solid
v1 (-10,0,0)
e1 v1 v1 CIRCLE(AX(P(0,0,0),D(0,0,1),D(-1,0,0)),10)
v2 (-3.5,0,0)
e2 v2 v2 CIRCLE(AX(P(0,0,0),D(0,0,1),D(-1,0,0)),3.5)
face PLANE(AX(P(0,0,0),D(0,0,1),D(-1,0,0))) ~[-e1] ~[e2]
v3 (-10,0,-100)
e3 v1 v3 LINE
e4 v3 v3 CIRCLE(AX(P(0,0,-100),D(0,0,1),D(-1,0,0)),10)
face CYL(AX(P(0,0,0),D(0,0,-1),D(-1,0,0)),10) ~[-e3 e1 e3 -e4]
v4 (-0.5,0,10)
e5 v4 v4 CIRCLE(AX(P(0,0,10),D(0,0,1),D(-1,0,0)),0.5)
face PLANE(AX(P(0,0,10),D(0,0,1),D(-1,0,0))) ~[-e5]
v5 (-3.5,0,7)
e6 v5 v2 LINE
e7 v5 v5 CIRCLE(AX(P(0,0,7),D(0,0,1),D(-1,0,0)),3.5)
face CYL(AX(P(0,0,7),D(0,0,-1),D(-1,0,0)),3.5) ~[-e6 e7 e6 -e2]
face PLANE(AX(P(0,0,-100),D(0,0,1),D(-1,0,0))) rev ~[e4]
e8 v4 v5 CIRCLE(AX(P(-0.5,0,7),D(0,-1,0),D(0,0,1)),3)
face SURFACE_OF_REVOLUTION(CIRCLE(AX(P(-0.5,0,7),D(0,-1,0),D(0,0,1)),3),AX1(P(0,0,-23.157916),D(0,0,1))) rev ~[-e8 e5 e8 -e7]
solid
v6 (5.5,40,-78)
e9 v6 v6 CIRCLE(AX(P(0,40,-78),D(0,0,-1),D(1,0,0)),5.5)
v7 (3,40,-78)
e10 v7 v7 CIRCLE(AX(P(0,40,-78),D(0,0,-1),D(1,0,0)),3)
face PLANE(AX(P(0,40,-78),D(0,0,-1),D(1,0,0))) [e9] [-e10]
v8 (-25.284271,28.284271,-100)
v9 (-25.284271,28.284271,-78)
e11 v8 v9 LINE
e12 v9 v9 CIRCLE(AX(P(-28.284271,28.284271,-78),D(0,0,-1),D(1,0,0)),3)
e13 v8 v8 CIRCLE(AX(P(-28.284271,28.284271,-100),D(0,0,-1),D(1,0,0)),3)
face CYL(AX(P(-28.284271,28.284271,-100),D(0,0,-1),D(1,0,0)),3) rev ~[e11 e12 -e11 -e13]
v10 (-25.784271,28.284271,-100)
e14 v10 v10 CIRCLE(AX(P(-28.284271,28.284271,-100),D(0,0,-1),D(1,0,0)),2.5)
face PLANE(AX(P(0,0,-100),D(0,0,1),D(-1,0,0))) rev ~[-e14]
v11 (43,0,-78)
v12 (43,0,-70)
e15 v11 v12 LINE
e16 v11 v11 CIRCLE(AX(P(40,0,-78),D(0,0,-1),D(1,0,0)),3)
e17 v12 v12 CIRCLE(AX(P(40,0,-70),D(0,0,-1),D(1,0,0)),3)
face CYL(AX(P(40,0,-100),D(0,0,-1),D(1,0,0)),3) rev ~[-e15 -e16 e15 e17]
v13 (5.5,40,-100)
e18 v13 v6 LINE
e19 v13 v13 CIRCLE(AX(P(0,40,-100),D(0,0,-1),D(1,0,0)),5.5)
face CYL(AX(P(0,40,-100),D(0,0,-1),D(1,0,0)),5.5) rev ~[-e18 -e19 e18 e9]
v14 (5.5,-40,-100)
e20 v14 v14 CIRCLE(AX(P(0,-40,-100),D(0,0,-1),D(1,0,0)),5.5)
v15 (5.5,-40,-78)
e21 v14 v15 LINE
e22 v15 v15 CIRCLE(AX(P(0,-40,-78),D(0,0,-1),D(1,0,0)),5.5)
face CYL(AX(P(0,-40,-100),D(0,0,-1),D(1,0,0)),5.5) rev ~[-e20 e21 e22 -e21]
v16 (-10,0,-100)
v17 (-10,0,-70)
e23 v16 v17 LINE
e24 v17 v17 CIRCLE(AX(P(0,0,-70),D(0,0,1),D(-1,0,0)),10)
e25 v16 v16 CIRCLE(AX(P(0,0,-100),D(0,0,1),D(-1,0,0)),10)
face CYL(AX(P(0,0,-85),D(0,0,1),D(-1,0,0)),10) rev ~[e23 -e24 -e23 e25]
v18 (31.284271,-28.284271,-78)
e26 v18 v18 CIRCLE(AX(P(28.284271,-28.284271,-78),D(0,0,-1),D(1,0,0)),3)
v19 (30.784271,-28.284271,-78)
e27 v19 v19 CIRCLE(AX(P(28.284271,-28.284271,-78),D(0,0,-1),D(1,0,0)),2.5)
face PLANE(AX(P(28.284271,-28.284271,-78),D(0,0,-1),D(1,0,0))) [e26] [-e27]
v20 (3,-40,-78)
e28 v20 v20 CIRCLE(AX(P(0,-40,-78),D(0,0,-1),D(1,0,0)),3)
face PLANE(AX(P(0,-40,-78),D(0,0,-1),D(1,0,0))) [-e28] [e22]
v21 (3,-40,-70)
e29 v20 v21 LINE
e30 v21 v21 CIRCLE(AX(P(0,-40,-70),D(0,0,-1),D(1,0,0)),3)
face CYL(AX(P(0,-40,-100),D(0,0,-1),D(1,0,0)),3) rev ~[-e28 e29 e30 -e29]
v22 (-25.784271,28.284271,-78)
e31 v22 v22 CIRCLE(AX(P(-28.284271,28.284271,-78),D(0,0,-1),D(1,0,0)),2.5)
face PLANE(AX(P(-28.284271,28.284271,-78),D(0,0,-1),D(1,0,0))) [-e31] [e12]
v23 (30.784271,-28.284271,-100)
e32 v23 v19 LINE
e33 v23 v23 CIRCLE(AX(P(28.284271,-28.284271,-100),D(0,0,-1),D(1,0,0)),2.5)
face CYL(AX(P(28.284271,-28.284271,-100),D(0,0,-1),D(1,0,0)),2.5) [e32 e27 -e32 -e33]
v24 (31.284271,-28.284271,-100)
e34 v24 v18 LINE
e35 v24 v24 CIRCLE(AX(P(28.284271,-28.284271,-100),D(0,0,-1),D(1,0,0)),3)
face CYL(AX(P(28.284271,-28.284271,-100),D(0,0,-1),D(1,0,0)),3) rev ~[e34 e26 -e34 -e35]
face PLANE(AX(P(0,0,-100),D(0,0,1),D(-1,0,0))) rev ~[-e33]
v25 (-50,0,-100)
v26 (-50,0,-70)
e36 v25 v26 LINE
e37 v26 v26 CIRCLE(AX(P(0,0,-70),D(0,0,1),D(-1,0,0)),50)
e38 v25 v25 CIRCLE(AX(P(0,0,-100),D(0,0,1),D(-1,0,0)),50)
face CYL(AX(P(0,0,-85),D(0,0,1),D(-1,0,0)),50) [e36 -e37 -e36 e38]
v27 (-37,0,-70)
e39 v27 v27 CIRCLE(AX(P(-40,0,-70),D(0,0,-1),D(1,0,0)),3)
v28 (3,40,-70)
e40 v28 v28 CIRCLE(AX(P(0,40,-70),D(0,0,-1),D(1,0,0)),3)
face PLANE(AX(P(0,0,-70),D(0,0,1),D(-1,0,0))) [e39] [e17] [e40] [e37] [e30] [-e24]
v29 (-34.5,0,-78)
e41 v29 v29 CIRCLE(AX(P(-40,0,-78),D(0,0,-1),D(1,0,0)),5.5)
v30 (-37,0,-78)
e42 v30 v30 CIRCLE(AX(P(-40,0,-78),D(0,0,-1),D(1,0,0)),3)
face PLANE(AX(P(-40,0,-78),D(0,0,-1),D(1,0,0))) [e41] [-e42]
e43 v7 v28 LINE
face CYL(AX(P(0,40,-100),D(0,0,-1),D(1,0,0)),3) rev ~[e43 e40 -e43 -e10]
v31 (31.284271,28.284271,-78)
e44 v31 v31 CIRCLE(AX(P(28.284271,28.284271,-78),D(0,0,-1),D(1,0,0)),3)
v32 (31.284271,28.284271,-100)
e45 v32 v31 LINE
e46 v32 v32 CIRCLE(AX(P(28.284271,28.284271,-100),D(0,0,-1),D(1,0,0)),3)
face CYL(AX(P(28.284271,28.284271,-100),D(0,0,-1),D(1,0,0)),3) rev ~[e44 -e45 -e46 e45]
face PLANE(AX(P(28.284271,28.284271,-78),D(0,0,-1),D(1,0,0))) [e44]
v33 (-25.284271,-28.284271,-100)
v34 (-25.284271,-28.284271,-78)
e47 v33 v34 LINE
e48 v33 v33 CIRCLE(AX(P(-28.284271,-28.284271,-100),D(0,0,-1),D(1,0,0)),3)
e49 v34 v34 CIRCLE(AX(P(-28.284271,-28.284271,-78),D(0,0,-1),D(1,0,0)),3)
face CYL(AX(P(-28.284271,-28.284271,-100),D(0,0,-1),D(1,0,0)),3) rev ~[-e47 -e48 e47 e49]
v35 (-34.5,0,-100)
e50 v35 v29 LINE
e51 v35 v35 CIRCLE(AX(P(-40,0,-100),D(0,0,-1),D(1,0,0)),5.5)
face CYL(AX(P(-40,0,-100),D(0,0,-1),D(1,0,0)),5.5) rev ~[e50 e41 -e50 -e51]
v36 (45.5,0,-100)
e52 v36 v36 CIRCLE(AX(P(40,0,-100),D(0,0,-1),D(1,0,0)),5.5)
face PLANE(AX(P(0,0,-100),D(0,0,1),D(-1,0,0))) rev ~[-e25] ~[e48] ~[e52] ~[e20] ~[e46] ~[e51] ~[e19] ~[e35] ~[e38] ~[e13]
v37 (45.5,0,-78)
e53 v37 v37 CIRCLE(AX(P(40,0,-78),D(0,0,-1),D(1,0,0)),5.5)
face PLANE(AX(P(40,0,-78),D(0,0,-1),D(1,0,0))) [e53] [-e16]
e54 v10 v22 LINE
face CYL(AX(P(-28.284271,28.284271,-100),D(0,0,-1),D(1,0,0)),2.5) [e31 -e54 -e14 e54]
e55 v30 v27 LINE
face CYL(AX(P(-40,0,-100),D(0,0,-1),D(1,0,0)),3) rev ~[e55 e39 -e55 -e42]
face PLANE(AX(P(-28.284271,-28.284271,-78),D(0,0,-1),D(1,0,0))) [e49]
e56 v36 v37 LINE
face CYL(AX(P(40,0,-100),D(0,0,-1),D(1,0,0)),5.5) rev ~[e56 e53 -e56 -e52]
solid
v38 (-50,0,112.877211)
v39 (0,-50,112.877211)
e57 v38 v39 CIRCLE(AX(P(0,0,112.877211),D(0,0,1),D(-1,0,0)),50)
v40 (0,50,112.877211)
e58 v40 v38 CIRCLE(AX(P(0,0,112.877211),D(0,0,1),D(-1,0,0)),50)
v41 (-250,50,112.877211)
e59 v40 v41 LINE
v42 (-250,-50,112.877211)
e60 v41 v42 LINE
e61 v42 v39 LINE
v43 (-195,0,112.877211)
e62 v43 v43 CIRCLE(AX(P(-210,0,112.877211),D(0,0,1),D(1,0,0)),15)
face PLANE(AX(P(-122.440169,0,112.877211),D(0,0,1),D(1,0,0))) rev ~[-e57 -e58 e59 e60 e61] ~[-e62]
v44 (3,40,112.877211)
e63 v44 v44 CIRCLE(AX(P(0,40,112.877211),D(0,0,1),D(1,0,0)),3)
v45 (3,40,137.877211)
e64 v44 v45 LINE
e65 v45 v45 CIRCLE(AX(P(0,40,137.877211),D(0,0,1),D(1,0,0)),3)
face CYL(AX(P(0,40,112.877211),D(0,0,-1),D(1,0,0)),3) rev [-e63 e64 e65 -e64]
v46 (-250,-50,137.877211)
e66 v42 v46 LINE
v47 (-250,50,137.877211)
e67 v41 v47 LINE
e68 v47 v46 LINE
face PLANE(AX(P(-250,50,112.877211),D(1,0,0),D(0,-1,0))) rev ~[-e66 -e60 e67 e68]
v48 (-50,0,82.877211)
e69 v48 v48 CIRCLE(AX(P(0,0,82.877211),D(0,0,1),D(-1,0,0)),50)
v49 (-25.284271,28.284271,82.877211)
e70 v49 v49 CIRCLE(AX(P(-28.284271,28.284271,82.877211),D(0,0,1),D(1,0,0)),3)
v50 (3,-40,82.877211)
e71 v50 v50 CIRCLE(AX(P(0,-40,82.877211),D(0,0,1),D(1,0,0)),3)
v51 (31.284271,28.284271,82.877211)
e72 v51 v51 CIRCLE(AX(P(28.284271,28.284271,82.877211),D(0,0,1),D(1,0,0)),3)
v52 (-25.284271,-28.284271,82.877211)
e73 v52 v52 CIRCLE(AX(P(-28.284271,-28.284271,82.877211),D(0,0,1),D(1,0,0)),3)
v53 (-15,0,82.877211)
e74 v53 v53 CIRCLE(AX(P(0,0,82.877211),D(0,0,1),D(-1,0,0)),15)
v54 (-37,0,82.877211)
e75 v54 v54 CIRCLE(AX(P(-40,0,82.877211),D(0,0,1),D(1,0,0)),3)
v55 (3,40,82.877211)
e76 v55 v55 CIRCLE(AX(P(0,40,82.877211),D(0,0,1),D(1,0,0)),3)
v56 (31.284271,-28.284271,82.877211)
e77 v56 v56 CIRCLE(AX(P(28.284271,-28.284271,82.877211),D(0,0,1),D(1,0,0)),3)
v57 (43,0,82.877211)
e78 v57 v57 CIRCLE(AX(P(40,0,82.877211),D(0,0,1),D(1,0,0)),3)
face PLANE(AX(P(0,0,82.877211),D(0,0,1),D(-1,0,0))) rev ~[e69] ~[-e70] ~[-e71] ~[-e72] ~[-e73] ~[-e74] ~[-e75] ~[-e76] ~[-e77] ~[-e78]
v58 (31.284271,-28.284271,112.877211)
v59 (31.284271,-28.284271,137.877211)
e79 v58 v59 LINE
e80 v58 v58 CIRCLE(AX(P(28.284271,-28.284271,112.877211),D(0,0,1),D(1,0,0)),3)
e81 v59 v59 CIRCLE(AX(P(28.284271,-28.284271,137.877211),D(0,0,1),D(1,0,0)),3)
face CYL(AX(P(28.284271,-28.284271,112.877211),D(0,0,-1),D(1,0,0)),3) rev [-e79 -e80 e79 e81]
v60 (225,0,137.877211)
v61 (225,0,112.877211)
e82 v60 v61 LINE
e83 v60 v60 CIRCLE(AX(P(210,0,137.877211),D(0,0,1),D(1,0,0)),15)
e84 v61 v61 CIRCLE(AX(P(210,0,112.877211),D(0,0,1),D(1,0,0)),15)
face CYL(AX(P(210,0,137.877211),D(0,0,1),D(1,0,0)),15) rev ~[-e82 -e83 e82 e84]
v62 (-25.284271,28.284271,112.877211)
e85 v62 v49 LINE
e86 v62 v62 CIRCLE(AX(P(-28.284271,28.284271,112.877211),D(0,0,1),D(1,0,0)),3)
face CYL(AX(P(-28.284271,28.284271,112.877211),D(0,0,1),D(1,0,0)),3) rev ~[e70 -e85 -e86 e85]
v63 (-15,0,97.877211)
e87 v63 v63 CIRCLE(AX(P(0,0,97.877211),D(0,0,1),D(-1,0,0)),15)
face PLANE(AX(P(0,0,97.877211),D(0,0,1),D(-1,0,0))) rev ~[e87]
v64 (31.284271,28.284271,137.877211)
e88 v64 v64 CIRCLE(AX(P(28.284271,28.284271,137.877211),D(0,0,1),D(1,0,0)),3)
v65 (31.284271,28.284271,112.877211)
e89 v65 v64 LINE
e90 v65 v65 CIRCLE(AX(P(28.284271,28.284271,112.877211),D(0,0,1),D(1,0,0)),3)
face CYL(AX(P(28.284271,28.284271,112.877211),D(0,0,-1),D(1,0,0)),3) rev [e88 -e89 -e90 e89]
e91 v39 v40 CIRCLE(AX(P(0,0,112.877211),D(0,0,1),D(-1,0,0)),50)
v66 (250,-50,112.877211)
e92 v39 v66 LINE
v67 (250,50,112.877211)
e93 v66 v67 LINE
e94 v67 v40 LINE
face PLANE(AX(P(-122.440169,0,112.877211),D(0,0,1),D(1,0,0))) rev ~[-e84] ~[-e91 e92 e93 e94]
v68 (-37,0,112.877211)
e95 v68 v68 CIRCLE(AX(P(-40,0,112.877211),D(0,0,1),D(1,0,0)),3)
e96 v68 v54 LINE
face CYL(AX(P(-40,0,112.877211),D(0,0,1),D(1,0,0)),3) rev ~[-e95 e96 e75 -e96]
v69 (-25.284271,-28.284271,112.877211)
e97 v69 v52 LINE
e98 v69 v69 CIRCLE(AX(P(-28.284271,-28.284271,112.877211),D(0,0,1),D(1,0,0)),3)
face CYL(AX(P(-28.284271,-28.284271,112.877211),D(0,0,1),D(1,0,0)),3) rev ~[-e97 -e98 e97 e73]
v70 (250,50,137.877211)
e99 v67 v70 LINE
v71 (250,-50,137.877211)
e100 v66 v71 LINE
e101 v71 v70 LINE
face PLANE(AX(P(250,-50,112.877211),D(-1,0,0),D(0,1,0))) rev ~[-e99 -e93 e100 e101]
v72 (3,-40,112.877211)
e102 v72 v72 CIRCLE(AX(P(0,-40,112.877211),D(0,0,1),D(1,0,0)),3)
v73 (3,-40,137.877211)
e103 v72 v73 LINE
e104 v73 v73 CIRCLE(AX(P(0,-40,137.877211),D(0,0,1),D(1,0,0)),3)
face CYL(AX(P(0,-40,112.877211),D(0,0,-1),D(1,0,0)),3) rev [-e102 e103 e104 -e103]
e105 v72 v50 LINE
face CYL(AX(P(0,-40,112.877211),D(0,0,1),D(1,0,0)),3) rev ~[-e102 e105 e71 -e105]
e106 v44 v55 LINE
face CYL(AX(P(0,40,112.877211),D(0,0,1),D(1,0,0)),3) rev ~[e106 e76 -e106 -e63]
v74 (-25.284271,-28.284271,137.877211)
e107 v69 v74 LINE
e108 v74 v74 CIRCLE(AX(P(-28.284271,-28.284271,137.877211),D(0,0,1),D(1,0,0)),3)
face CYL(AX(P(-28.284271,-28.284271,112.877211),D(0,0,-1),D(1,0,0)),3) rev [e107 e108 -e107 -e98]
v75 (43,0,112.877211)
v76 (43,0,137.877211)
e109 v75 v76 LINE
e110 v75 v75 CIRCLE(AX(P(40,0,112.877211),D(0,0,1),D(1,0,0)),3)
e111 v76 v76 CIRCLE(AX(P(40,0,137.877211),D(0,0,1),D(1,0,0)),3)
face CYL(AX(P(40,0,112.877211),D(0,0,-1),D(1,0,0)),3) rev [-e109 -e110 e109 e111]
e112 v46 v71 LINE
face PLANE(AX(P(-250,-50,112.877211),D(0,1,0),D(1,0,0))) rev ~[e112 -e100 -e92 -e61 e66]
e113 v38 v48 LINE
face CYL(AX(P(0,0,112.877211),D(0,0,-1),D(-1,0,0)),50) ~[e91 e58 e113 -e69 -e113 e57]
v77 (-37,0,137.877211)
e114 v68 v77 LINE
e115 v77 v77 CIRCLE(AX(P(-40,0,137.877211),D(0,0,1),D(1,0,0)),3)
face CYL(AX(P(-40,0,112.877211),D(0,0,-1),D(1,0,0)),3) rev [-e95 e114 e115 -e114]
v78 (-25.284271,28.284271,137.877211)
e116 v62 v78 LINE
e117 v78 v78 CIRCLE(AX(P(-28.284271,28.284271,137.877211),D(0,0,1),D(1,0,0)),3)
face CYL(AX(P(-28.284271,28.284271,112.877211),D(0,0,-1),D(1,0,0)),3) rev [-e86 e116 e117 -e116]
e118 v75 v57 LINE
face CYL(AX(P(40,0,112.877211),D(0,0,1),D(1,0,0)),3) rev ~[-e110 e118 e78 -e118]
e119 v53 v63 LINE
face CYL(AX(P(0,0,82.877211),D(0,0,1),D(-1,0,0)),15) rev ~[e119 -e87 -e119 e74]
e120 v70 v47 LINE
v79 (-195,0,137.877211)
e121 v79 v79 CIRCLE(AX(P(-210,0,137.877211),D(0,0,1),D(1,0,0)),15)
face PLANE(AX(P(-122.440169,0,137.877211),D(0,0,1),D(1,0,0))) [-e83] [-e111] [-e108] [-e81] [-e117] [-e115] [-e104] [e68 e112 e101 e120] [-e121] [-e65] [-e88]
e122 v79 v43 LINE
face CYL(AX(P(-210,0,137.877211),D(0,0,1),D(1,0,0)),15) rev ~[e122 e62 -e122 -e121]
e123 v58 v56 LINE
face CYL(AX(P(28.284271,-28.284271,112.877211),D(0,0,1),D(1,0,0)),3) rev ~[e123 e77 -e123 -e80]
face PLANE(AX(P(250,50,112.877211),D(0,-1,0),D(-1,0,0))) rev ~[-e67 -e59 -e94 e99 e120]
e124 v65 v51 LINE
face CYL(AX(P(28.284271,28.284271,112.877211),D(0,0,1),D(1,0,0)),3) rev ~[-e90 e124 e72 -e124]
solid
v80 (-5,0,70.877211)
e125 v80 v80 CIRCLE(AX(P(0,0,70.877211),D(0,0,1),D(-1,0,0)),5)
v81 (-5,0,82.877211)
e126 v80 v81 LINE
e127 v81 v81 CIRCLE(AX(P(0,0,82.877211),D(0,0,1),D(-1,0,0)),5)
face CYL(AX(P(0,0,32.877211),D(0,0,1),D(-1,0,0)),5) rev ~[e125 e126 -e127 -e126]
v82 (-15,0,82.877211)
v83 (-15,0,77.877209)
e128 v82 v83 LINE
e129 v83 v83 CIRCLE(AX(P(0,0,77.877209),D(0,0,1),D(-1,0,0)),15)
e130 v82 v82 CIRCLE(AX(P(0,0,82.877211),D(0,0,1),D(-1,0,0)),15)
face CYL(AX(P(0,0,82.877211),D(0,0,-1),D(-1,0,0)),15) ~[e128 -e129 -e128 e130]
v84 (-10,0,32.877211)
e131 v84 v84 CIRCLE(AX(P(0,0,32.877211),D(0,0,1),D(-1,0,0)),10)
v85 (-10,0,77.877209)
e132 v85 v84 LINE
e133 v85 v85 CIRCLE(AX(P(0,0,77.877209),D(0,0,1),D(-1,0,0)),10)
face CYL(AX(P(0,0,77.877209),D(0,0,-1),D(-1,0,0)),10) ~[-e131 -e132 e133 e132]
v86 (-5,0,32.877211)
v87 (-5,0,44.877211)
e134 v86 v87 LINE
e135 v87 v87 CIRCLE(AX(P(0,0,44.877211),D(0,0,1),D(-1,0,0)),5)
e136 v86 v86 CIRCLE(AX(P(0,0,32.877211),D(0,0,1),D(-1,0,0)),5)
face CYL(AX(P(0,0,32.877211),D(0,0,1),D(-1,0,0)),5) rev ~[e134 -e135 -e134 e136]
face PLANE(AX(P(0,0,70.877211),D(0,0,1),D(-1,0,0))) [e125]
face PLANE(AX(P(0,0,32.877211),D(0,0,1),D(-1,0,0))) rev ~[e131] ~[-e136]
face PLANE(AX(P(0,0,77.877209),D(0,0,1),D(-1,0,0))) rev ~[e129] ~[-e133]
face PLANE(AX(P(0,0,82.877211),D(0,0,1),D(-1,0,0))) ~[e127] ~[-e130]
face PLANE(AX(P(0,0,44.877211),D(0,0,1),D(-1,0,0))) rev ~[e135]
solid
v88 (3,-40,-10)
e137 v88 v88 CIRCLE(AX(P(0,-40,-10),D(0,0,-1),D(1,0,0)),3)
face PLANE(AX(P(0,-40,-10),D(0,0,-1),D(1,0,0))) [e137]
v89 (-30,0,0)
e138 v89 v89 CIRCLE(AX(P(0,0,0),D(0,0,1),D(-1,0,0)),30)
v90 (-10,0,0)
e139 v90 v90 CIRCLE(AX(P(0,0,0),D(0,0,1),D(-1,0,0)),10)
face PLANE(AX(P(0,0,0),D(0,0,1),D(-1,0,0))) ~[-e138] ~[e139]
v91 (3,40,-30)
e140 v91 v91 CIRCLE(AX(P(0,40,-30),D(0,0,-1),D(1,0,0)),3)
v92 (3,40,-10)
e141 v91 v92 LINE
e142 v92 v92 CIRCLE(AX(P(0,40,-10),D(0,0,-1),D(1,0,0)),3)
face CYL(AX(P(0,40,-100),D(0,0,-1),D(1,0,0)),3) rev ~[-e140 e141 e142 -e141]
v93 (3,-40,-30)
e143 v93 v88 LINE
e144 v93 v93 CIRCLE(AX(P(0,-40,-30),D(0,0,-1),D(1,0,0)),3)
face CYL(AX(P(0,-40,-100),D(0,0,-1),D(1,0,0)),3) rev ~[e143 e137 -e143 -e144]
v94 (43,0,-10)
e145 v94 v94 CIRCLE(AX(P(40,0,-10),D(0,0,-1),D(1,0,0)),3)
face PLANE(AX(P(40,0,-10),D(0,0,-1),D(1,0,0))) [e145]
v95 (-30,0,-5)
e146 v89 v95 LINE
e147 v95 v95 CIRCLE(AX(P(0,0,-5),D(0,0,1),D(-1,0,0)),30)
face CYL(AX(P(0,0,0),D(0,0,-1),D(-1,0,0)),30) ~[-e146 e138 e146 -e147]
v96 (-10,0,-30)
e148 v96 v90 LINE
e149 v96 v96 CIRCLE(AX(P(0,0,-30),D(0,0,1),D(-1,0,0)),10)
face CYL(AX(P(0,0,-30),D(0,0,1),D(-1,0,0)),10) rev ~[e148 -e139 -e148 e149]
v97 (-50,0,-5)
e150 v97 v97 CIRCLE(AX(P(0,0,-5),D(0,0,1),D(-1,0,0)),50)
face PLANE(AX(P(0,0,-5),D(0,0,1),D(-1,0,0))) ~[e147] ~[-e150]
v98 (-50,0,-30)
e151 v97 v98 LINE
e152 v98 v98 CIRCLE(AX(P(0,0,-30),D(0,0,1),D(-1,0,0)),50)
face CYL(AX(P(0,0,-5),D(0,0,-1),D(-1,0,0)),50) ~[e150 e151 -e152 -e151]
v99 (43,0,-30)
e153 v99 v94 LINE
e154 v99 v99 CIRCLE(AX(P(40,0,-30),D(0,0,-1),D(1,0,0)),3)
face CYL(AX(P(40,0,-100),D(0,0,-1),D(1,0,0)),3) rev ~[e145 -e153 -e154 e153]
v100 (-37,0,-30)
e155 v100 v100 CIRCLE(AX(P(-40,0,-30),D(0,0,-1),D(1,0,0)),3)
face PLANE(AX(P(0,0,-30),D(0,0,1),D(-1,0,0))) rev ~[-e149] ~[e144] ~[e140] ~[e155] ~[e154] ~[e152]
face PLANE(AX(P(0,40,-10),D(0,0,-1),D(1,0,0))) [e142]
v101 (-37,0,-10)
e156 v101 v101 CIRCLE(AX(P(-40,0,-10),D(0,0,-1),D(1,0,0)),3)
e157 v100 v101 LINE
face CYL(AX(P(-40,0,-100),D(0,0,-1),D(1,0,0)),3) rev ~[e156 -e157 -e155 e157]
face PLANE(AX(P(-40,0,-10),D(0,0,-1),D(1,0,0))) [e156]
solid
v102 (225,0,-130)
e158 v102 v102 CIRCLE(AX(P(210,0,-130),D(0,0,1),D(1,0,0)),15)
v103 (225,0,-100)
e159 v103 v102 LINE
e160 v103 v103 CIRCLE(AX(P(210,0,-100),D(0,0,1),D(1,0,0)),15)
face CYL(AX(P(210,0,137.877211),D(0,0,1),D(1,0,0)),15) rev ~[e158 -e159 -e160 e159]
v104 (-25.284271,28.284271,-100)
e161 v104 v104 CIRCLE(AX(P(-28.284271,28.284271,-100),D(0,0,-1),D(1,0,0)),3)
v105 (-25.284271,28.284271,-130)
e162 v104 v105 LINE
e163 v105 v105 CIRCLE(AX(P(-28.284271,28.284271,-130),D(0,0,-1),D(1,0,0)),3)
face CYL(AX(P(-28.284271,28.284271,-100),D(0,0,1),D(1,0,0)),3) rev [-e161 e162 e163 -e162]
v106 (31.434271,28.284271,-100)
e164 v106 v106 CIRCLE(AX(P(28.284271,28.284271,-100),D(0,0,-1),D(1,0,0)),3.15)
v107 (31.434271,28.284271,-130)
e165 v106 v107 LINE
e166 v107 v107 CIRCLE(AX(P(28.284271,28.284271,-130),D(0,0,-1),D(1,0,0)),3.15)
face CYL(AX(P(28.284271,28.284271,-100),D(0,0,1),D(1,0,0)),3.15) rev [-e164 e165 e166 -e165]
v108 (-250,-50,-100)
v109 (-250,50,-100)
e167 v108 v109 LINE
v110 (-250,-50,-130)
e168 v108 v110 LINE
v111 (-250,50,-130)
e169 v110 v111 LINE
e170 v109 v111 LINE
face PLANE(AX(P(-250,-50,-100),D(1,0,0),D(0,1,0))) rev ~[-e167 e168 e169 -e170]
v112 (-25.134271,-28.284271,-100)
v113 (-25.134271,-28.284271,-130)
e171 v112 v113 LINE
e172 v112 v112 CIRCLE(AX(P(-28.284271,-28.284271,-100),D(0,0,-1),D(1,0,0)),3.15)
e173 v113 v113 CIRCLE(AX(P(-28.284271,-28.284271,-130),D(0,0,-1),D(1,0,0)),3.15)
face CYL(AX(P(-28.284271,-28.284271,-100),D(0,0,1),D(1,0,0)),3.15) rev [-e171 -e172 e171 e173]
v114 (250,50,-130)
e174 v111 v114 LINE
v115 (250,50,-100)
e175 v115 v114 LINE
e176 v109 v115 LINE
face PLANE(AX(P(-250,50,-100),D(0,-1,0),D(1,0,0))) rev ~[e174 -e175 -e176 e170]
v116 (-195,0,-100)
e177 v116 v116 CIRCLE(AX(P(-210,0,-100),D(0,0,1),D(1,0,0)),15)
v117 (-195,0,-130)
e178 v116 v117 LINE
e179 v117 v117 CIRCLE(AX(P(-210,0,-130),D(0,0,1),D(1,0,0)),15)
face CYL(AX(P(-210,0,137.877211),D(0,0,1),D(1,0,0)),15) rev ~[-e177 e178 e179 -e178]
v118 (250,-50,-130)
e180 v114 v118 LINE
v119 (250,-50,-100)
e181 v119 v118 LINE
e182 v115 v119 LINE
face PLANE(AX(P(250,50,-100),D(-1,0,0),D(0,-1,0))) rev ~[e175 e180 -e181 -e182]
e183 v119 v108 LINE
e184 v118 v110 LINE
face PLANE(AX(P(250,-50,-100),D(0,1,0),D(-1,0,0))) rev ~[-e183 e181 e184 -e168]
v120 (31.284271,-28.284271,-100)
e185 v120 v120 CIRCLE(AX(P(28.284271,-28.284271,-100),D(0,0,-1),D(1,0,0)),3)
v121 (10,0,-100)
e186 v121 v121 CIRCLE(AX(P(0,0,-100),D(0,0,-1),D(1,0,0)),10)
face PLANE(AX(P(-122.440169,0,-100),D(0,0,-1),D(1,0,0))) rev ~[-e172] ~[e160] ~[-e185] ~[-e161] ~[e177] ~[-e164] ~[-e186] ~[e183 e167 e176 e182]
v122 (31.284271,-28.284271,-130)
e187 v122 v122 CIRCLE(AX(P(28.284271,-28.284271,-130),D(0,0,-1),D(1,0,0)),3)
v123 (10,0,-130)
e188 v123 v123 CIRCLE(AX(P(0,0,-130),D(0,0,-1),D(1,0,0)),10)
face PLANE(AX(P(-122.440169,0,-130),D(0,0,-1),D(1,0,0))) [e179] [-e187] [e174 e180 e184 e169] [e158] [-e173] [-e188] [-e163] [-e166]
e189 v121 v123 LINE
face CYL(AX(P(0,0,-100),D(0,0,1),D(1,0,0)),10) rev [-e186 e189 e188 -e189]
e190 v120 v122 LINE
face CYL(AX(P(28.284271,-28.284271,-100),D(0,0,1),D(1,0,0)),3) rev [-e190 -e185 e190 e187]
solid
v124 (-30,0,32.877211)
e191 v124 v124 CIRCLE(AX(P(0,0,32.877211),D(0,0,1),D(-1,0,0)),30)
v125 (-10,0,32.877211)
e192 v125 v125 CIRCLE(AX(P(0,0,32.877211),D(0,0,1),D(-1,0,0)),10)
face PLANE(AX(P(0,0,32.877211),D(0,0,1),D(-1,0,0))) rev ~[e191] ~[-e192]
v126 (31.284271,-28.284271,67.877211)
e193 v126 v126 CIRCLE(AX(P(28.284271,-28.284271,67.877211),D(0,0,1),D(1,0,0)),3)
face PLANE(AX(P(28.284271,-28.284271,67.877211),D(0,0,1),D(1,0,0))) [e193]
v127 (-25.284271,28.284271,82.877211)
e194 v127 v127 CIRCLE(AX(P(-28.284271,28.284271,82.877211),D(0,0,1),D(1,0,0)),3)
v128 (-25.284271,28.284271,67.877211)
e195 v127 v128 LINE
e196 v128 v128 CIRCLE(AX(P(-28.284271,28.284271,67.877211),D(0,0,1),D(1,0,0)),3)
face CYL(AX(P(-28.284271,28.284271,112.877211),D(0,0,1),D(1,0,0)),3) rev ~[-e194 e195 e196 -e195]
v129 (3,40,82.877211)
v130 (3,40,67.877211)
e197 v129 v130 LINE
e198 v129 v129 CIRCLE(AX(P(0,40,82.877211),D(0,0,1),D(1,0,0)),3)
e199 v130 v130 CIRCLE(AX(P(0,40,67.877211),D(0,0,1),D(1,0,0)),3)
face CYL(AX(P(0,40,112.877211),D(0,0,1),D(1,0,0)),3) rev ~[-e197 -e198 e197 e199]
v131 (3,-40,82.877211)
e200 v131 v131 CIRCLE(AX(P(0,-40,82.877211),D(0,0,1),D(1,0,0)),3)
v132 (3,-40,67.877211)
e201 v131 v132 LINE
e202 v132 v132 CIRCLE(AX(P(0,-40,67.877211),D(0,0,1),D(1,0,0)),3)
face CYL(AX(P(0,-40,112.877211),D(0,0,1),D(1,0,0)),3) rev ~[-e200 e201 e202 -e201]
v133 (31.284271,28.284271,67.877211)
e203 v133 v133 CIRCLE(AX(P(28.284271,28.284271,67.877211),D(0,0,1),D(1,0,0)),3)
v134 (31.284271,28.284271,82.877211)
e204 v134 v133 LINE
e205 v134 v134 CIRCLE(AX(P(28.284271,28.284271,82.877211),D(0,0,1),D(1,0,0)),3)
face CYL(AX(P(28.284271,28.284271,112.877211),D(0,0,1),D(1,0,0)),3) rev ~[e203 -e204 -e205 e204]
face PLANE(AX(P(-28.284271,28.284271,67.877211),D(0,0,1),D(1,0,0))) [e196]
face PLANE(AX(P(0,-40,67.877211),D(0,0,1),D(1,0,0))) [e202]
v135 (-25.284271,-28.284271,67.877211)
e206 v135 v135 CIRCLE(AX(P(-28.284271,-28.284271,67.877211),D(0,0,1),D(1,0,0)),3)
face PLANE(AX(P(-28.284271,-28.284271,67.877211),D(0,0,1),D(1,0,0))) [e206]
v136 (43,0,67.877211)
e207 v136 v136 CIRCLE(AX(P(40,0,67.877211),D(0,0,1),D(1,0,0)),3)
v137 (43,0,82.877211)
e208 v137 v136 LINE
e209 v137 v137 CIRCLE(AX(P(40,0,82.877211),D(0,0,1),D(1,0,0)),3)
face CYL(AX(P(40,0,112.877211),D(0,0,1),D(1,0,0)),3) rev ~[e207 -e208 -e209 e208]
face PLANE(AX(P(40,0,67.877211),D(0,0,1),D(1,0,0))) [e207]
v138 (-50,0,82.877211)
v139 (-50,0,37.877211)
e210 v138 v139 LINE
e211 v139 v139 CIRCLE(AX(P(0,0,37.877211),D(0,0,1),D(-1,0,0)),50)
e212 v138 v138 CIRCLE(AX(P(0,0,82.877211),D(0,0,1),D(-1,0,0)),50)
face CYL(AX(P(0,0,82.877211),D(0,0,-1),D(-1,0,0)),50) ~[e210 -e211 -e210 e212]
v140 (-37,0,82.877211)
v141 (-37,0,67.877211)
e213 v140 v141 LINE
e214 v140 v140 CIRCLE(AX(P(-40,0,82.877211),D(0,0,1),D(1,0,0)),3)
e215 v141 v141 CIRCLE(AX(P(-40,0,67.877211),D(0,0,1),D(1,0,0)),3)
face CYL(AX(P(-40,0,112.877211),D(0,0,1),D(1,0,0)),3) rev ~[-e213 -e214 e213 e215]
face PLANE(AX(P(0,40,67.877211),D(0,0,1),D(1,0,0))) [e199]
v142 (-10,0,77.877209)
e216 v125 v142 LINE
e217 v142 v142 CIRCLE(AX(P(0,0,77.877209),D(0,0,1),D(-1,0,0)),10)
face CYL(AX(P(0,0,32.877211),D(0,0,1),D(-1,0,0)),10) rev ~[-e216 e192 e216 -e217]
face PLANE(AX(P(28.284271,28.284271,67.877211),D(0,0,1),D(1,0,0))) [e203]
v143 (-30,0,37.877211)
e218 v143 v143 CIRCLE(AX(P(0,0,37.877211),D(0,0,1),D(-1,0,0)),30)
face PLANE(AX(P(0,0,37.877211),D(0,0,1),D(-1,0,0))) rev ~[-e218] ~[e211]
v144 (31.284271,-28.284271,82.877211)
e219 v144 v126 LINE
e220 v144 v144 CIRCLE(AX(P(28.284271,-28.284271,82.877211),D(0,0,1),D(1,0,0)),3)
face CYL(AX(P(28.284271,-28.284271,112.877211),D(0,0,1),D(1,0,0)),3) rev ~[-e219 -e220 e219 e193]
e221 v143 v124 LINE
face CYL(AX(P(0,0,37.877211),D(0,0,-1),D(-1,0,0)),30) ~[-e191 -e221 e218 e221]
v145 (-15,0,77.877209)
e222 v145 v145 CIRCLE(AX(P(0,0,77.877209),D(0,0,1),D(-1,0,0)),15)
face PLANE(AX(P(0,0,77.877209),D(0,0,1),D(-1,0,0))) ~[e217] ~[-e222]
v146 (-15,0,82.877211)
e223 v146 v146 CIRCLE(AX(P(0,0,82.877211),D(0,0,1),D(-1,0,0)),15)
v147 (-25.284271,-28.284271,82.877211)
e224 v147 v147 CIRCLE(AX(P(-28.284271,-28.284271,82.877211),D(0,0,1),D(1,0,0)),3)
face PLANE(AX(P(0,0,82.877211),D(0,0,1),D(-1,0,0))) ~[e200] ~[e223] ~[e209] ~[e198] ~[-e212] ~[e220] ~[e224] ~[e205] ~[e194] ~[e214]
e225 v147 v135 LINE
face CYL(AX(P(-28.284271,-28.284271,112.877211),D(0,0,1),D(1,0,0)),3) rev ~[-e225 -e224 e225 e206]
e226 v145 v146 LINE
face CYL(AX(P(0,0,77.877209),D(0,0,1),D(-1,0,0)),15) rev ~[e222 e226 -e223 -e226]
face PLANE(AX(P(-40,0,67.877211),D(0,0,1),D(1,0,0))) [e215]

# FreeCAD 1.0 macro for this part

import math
import FreeCAD as App
import Part
import Sketcher


def add_polygon(sketch, points):
    """Adds a closed chain of lines whose ends are joined by coincident constraints."""
    first, n = sketch.GeometryCount, len(points)
    for a, b in zip(points, points[1:] + points[:1]):
        sketch.addGeometry(Part.LineSegment(App.Vector(*a, 0), App.Vector(*b, 0)), False)
    for i in range(n):
        sketch.addConstraint(Sketcher.Constraint("Coincident", first + i, 2, first + (i + 1) % n, 1))

doc = App.newDocument("Part")
body = doc.addObject("PartDesign::Body", "Body")

# Sketch on XZ plane
sketch1 = body.newObject("Sketcher::SketchObject", "Sketch")
sketch1.AttachmentSupport = (doc.getObject("XZ_Plane"), [""])
sketch1.MapMode = "FlatFace"
add_polygon(sketch1, [(-10, 0), (-30, 0), (-30, -5), (-50, -5), (-50, -30), (-10, -30)])  # lines 0-5
sketch1.addConstraint([
    Sketcher.Constraint("Horizontal", 0),
    Sketcher.Constraint("Vertical", 1),
    Sketcher.Constraint("Horizontal", 2),
    Sketcher.Constraint("Vertical", 3),
    Sketcher.Constraint("Horizontal", 4),
    Sketcher.Constraint("Vertical", 5),
    Sketcher.Constraint("PointOnObject", 0, 2, -1),
    Sketcher.Constraint("Equal", 0, 2),
    Sketcher.Constraint("DistanceX", 0, 2, 0, 1, 20.0),
    Sketcher.Constraint("DistanceY", 1, 2, 1, 1, 5.0),
    Sketcher.Constraint("DistanceY", 3, 2, 3, 1, 25.0),
    Sketcher.Constraint("DistanceX", 0, 2, -1, 1, 30.0),
])
revolution = body.newObject("PartDesign::Revolution", "Revolution")
revolution.Profile = sketch1
revolution.ReferenceAxis = (sketch1, ["V_Axis"])
revolution.Angle = 360
body2 = doc.addObject("PartDesign::Body", "Body001")

# Sketch on XZ plane
sketch2 = body2.newObject("Sketcher::SketchObject", "Sketch001")
sketch2.AttachmentSupport = (doc.getObject("XZ_Plane001"), [""])
sketch2.MapMode = "FlatFace"
sketch2.addGeometry([
    Part.LineSegment(App.Vector(-3.5, 0, 0), App.Vector(-10, 0, 0)),  # 0
    Part.LineSegment(App.Vector(-10, 0, 0), App.Vector(-10, -100, 0)),  # 1
    Part.LineSegment(App.Vector(-10, -100, 0), App.Vector(0, -100, 0)),  # 2
    Part.LineSegment(App.Vector(0, -100, 0), App.Vector(0, 10, 0)),  # 3
    Part.LineSegment(App.Vector(0, 10, 0), App.Vector(-0.5, 10, 0)),  # 4
    Part.ArcOfCircle(Part.Circle(App.Vector(-0.5, 7, 0), App.Vector(0, 0, 1), 3), math.radians(90), math.radians(180)),  # 5
    Part.LineSegment(App.Vector(-3.5, 7, 0), App.Vector(-3.5, 0, 0)),  # 6
], False)
sketch2.addConstraint([
    Sketcher.Constraint("Coincident", 0, 2, 1, 1),
    Sketcher.Constraint("Coincident", 1, 2, 2, 1),
    Sketcher.Constraint("Coincident", 2, 2, 3, 1),
    Sketcher.Constraint("Coincident", 3, 2, 4, 1),
    Sketcher.Constraint("Tangent", 4, 2, 5, 1),
    Sketcher.Constraint("Tangent", 5, 2, 6, 1),
    Sketcher.Constraint("Coincident", 6, 2, 0, 1),
    Sketcher.Constraint("Horizontal", 0),
    Sketcher.Constraint("Vertical", 1),
    Sketcher.Constraint("Horizontal", 2),
    Sketcher.Constraint("Vertical", 3),
    Sketcher.Constraint("Horizontal", 4),
    Sketcher.Constraint("Vertical", 6),
    Sketcher.Constraint("PointOnObject", 0, 2, -1),
    Sketcher.Constraint("PointOnObject", 2, 2, -2),
    Sketcher.Constraint("Radius", 5, 3.0),
    Sketcher.Constraint("DistanceX", 2, 1, 2, 2, 10.0),
    Sketcher.Constraint("DistanceY", 1, 2, 1, 1, 100.0),
    Sketcher.Constraint("DistanceY", 3, 1, 3, 2, 110.0),
    Sketcher.Constraint("DistanceX", 0, 2, 0, 1, 6.5),
])
revolution2 = body2.newObject("PartDesign::Revolution", "Revolution001")
revolution2.Profile = sketch2
revolution2.ReferenceAxis = (sketch2, ["V_Axis"])
revolution2.Angle = 360
body3 = doc.addObject("PartDesign::Body", "Body002")

# Sketch on XZ plane
sketch3 = body3.newObject("Sketcher::SketchObject", "Sketch002")
sketch3.AttachmentSupport = (doc.getObject("XZ_Plane002"), [""])
sketch3.MapMode = "FlatFace"
add_polygon(sketch3, [(-50, -70), (-50, -100), (-10, -100), (-10, -70)])  # lines 0-3
sketch3.addConstraint([
    Sketcher.Constraint("Vertical", 0),
    Sketcher.Constraint("Horizontal", 1),
    Sketcher.Constraint("Vertical", 2),
    Sketcher.Constraint("Horizontal", 3),
    Sketcher.Constraint("DistanceX", 1, 1, 1, 2, 40.0),
    Sketcher.Constraint("DistanceY", 0, 2, 0, 1, 30.0),
    Sketcher.Constraint("DistanceX", 0, 2, -1, 1, 50.0),
    Sketcher.Constraint("DistanceY", 0, 2, -1, 1, 100.0),
])
revolution3 = body3.newObject("PartDesign::Revolution", "Revolution002")
revolution3.Profile = sketch3
revolution3.ReferenceAxis = (sketch3, ["V_Axis"])
revolution3.Angle = 360
body4 = doc.addObject("PartDesign::Body", "Body003")
body4.AllowCompound = True

# Sketch on XY plane
sketch4 = body4.newObject("Sketcher::SketchObject", "Sketch003")
sketch4.AttachmentSupport = (doc.getObject("XY_Plane003"), [""])
sketch4.MapMode = "FlatFace"
sketch4.AttachmentOffset = App.Placement(App.Vector(0, 0, -100), App.Rotation())
sketch4.addGeometry([
    Part.Circle(App.Vector(0, 40, 0), App.Vector(0, 0, 1), 3),
    Part.Circle(App.Vector(-40, 0, 0), App.Vector(0, 0, 1), 3),
    Part.Circle(App.Vector(0, -40, 0), App.Vector(0, 0, 1), 3),
    Part.Circle(App.Vector(40, 0, 0), App.Vector(0, 0, 1), 3),
], False)
sketch4.addConstraint([
    Sketcher.Constraint("Equal", 0, 1),
    Sketcher.Constraint("Equal", 1, 2),
    Sketcher.Constraint("Equal", 2, 3),
    Sketcher.Constraint("Symmetric", 0, 3, 2, 3, -1, 1),
    Sketcher.Constraint("Symmetric", 1, 3, 3, 3, -1, 1),
    Sketcher.Constraint("PointOnObject", 0, 3, -2),
    Sketcher.Constraint("PointOnObject", 1, 3, -1),
    Sketcher.Constraint("Diameter", 0, 6.0),
    Sketcher.Constraint("DistanceY", -1, 1, 0, 3, 40.0),
    Sketcher.Constraint("DistanceX", 1, 3, -1, 1, 40.0),
])
pad1 = body4.newObject("PartDesign::Pad", "Pad")
pad1.Profile = sketch4
pad1.Length = 90
doc.recompute()

body5 = doc.addObject("PartDesign::Body", "Body004")
body5.BaseFeature = body4
boolean = body.newObject("PartDesign::Boolean", "Boolean")
boolean.Type = "Cut"
boolean.addObjects([body5])
doc.recompute()

boolean2 = body3.newObject("PartDesign::Boolean", "Boolean001")
boolean2.Type = "Cut"
boolean2.addObjects([body4])

# Sketch on XY plane
sketch5 = body3.newObject("Sketcher::SketchObject", "Sketch004")
sketch5.AttachmentSupport = (doc.getObject("XY_Plane002"), [""])
sketch5.MapMode = "FlatFace"
sketch5.AttachmentOffset = App.Placement(App.Vector(0, 0, -100), App.Rotation())
sketch5.addGeometry([
    Part.Circle(App.Vector(-40, 0, 0), App.Vector(0, 0, 1), 5.5),  # 0
    Part.Circle(App.Vector(-40, 0, 0), App.Vector(0, 0, 1), 3),  # 1
    Part.Circle(App.Vector(0, 40, 0), App.Vector(0, 0, 1), 5.5),  # 2
    Part.Circle(App.Vector(0, 40, 0), App.Vector(0, 0, 1), 3),  # 3
    Part.Circle(App.Vector(40, 0, 0), App.Vector(0, 0, 1), 5.5),  # 4
    Part.Circle(App.Vector(40, 0, 0), App.Vector(0, 0, 1), 3),  # 5
    Part.Circle(App.Vector(0, -40, 0), App.Vector(0, 0, 1), 5.5),  # 6
    Part.Circle(App.Vector(0, -40, 0), App.Vector(0, 0, 1), 3),  # 7
    Part.Circle(App.Vector(28.3, 28.3, 0), App.Vector(0, 0, 1), 3),  # 8
    Part.Circle(App.Vector(-28.3, 28.3, 0), App.Vector(0, 0, 1), 3),  # 9
    Part.Circle(App.Vector(-28.3, 28.3, 0), App.Vector(0, 0, 1), 2.5),  # 10
    Part.Circle(App.Vector(-28.3, -28.3, 0), App.Vector(0, 0, 1), 3),  # 11
    Part.Circle(App.Vector(28.3, -28.3, 0), App.Vector(0, 0, 1), 3),  # 12
    Part.Circle(App.Vector(28.3, -28.3, 0), App.Vector(0, 0, 1), 2.5),  # 13
], False)
sketch5.addConstraint([
    Sketcher.Constraint("Coincident", 1, 3, 0, 3),
    Sketcher.Constraint("Coincident", 3, 3, 2, 3),
    Sketcher.Constraint("Coincident", 5, 3, 4, 3),
    Sketcher.Constraint("Coincident", 7, 3, 6, 3),
    Sketcher.Constraint("Coincident", 10, 3, 9, 3),
    Sketcher.Constraint("Coincident", 13, 3, 12, 3),
    Sketcher.Constraint("Equal", 0, 2),
    Sketcher.Constraint("Equal", 1, 3),
    Sketcher.Constraint("Equal", 2, 4),
    Sketcher.Constraint("Equal", 3, 5),
    Sketcher.Constraint("Equal", 4, 6),
    Sketcher.Constraint("Equal", 5, 7),
    Sketcher.Constraint("Equal", 7, 8),
    Sketcher.Constraint("Equal", 8, 9),
    Sketcher.Constraint("Equal", 9, 11),
    Sketcher.Constraint("Equal", 11, 12),
    Sketcher.Constraint("Equal", 10, 13),
    Sketcher.Constraint("Symmetric", 0, 3, 4, 3, -1, 1),
    Sketcher.Constraint("Symmetric", 2, 3, 6, 3, -1, 1),
    Sketcher.Constraint("Symmetric", 8, 3, 11, 3, -1, 1),
    Sketcher.Constraint("Symmetric", 9, 3, 12, 3, -1, 1),
    Sketcher.Constraint("Symmetric", 8, 3, 9, 3, -2),
    Sketcher.Constraint("PointOnObject", 0, 3, -1),
    Sketcher.Constraint("PointOnObject", 2, 3, -2),
    Sketcher.Constraint("Diameter", 0, 11.0),
    Sketcher.Constraint("Diameter", 1, 6.0),
    Sketcher.Constraint("Diameter", 10, 5.0),
    Sketcher.Constraint("DistanceX", 0, 3, -1, 1, 40.0),
    Sketcher.Constraint("DistanceY", -1, 1, 2, 3, 40.0),
    Sketcher.Constraint("DistanceX", -1, 1, 8, 3, 28.284271),
    Sketcher.Constraint("DistanceY", -1, 1, 8, 3, 28.284271),
])
pocket1 = body3.newObject("PartDesign::Pocket", "Pocket")
pocket1.Profile = sketch5
pocket1.Length = 22
pocket1.Reversed = True
body6 = doc.addObject("PartDesign::Body", "Body005")

# Sketch on XY plane
sketch6 = body6.newObject("Sketcher::SketchObject", "Sketch005")
sketch6.AttachmentSupport = (doc.getObject("XY_Plane005"), [""])
sketch6.MapMode = "FlatFace"
sketch6.AttachmentOffset = App.Placement(App.Vector(0, 0, -100), App.Rotation())
add_polygon(sketch6, [(-250, -50), (-250, 50), (250, 50), (250, -50)])  # lines 0-3
sketch6.addGeometry(Part.Circle(App.Vector(-28.3, 28.3, 0), App.Vector(0, 0, 1), 3), False)  # 4
sketch6.addGeometry(Part.Circle(App.Vector(28.3, 28.3, 0), App.Vector(0, 0, 1), 3.1), False)  # 5
sketch6.addGeometry(Part.Circle(App.Vector(-28.3, -28.3, 0), App.Vector(0, 0, 1), 3.1), False)  # 6
sketch6.addGeometry(Part.Circle(App.Vector(0, 0, 0), App.Vector(0, 0, 1), 10), False)  # 7
sketch6.addGeometry(Part.Circle(App.Vector(28.3, -28.3, 0), App.Vector(0, 0, 1), 3), False)  # 8
sketch6.addConstraint([
    Sketcher.Constraint("Vertical", 0),
    Sketcher.Constraint("Horizontal", 1),
    Sketcher.Constraint("Vertical", 2),
    Sketcher.Constraint("Horizontal", 3),
    Sketcher.Constraint("Coincident", 7, 3, -1, 1),
    Sketcher.Constraint("Equal", 5, 6),
    Sketcher.Constraint("Equal", 4, 8),
    Sketcher.Constraint("Symmetric", 5, 3, 6, 3, -1, 1),
    Sketcher.Constraint("Symmetric", 4, 3, 8, 3, -1, 1),
    Sketcher.Constraint("Symmetric", 0, 2, 2, 2, -1, 1),
    Sketcher.Constraint("Symmetric", 4, 3, 5, 3, -2),
    Sketcher.Constraint("Diameter", 4, 6.0),
    Sketcher.Constraint("Diameter", 7, 20.0),
    Sketcher.Constraint("Diameter", 5, 6.3),
    Sketcher.Constraint("DistanceX", 1, 1, 1, 2, 500.0),
    Sketcher.Constraint("DistanceY", 0, 1, 0, 2, 100.0),
    Sketcher.Constraint("DistanceX", 4, 3, -1, 1, 28.284271),
    Sketcher.Constraint("DistanceY", -1, 1, 4, 3, 28.284271),
])
pad2 = body6.newObject("PartDesign::Pad", "Pad001")
pad2.Profile = sketch6
pad2.Length = 30
pad2.Reversed = True
body7 = doc.addObject("PartDesign::Body", "Body006")

# Sketch on XZ plane
sketch7 = body7.newObject("Sketcher::SketchObject", "Sketch006")
sketch7.AttachmentSupport = (doc.getObject("XZ_Plane006"), [""])
sketch7.MapMode = "FlatFace"
add_polygon(sketch7, [(-5, 32.9), (-5, 44.9), (0, 44.9), (0, 70.9), (-5, 70.9), (-5, 82.9), (-15, 82.9), (-15, 77.9), (-10, 77.9), (-10, 32.9)])  # lines 0-9
sketch7.addConstraint([
    Sketcher.Constraint("Vertical", 0),
    Sketcher.Constraint("Horizontal", 1),
    Sketcher.Constraint("Vertical", 2),
    Sketcher.Constraint("Horizontal", 3),
    Sketcher.Constraint("Vertical", 4),
    Sketcher.Constraint("Horizontal", 5),
    Sketcher.Constraint("Vertical", 6),
    Sketcher.Constraint("Horizontal", 7),
    Sketcher.Constraint("Vertical", 8),
    Sketcher.Constraint("Horizontal", 9),
    Sketcher.Constraint("PointOnObject", 1, 2, -2),
    Sketcher.Constraint("Vertical", 0, 2, 3, 2),
    Sketcher.Constraint("Equal", 3, 7),
    Sketcher.Constraint("Equal", 7, 9),
    Sketcher.Constraint("Equal", 0, 4),
    Sketcher.Constraint("DistanceX", 1, 1, 1, 2, 5.0),
    Sketcher.Constraint("DistanceY", 0, 1, 0, 2, 12.0),
    Sketcher.Constraint("DistanceY", 2, 1, 2, 2, 26.0),
    Sketcher.Constraint("DistanceY", 6, 2, 6, 1, 5.000003),
    Sketcher.Constraint("DistanceY", -1, 1, 0, 2, 44.877211),
])
revolution4 = body7.newObject("PartDesign::Revolution", "Revolution003")
revolution4.Profile = sketch7
revolution4.ReferenceAxis = (sketch7, ["V_Axis"])
revolution4.Angle = 360
body8 = doc.addObject("PartDesign::Body", "Body007")

# Sketch on XZ plane
sketch8 = body8.newObject("Sketcher::SketchObject", "Sketch007")
sketch8.AttachmentSupport = (doc.getObject("XZ_Plane007"), [""])
sketch8.MapMode = "FlatFace"
add_polygon(sketch8, [(-30, 32.9), (-10, 32.9), (-10, 77.9), (-15, 77.9), (-15, 82.9), (-50, 82.9), (-50, 37.9), (-30, 37.9)])  # lines 0-7
sketch8.addConstraint([
    Sketcher.Constraint("Horizontal", 0),
    Sketcher.Constraint("Vertical", 1),
    Sketcher.Constraint("Horizontal", 2),
    Sketcher.Constraint("Vertical", 3),
    Sketcher.Constraint("Horizontal", 4),
    Sketcher.Constraint("Vertical", 5),
    Sketcher.Constraint("Horizontal", 6),
    Sketcher.Constraint("Vertical", 7),
    Sketcher.Constraint("Equal", 0, 6),
    Sketcher.Constraint("Equal", 2, 7),
    Sketcher.Constraint("DistanceX", 0, 1, 0, 2, 20.0),
    Sketcher.Constraint("DistanceX", 2, 2, 2, 1, 5.0),
    Sketcher.Constraint("DistanceY", 5, 2, 5, 1, 45.0),
    Sketcher.Constraint("DistanceX", 0, 2, -1, 1, 10.0),
    Sketcher.Constraint("DistanceY", 1, 1, 1, 2, 44.999997),
    Sketcher.Constraint("DistanceY", -1, 1, 0, 2, 32.877211),
])
revolution5 = body8.newObject("PartDesign::Revolution", "Revolution004")
revolution5.Profile = sketch8
revolution5.ReferenceAxis = (sketch8, ["V_Axis"])
revolution5.Angle = 360
body9 = doc.addObject("PartDesign::Body", "Body008")

# Sketch on XZ plane
sketch9 = body9.newObject("Sketcher::SketchObject", "Sketch008")
sketch9.AttachmentSupport = (doc.getObject("XZ_Plane008"), [""])
sketch9.MapMode = "FlatFace"
add_polygon(sketch9, [(-50, 83), (-15, 83), (-15, 98), (0, 98), (0, 113), (-50, 113)])  # lines 0-5
sketch9.addConstraint([
    Sketcher.Constraint("Horizontal", 0),
    Sketcher.Constraint("Vertical", 1),
    Sketcher.Constraint("Horizontal", 2),
    Sketcher.Constraint("Vertical", 3),
    Sketcher.Constraint("Horizontal", 4),
    Sketcher.Constraint("Vertical", 5),
    Sketcher.Constraint("PointOnObject", 2, 2, -2),
    Sketcher.Constraint("Equal", 2, 1),
    Sketcher.Constraint("Equal", 1, 3),
    Sketcher.Constraint("DistanceX", 0, 1, 0, 2, 35.0),
    Sketcher.Constraint("DistanceX", 2, 1, 2, 2, 15.0),
    Sketcher.Constraint("DistanceY", -1, 1, 0, 2, 82.877211),
])
revolution6 = body9.newObject("PartDesign::Revolution", "Revolution005")
revolution6.Profile = sketch9
revolution6.ReferenceAxis = (sketch9, ["V_Axis"])
revolution6.Angle = 360
body10 = doc.addObject("PartDesign::Body", "Body009")
body10.AllowCompound = True

# Sketch on XY plane
sketch10 = body10.newObject("Sketcher::SketchObject", "Sketch009")
sketch10.AttachmentSupport = (doc.getObject("XY_Plane009"), [""])
sketch10.MapMode = "FlatFace"
sketch10.AttachmentOffset = App.Placement(App.Vector(0, 0, 112.877211), App.Rotation())
sketch10.addGeometry([
    Part.Circle(App.Vector(-28.3, -28.3, 0), App.Vector(0, 0, 1), 3),  # 0
    Part.Circle(App.Vector(28.3, -28.3, 0), App.Vector(0, 0, 1), 3),  # 1
    Part.Circle(App.Vector(28.3, 28.3, 0), App.Vector(0, 0, 1), 3),  # 2
    Part.Circle(App.Vector(-28.3, 28.3, 0), App.Vector(0, 0, 1), 3),  # 3
    Part.Circle(App.Vector(-40, 0, 0), App.Vector(0, 0, 1), 3),  # 4
    Part.Circle(App.Vector(0, -40, 0), App.Vector(0, 0, 1), 3),  # 5
    Part.Circle(App.Vector(40, 0, 0), App.Vector(0, 0, 1), 3),  # 6
    Part.Circle(App.Vector(0, 40, 0), App.Vector(0, 0, 1), 3),  # 7
], False)
sketch10.addConstraint([
    Sketcher.Constraint("Equal", 0, 1),
    Sketcher.Constraint("Equal", 1, 2),
    Sketcher.Constraint("Equal", 2, 3),
    Sketcher.Constraint("Equal", 3, 4),
    Sketcher.Constraint("Equal", 4, 5),
    Sketcher.Constraint("Equal", 5, 6),
    Sketcher.Constraint("Equal", 6, 7),
    Sketcher.Constraint("Symmetric", 0, 3, 2, 3, -1, 1),
    Sketcher.Constraint("Symmetric", 1, 3, 3, 3, -1, 1),
    Sketcher.Constraint("Symmetric", 4, 3, 6, 3, -1, 1),
    Sketcher.Constraint("Symmetric", 5, 3, 7, 3, -1, 1),
    Sketcher.Constraint("Symmetric", 0, 3, 1, 3, -2),
    Sketcher.Constraint("PointOnObject", 4, 3, -1),
    Sketcher.Constraint("PointOnObject", 5, 3, -2),
    Sketcher.Constraint("Diameter", 0, 6.0),
    Sketcher.Constraint("DistanceX", 4, 3, -1, 1, 40.0),
    Sketcher.Constraint("DistanceY", 5, 3, -1, 1, 40.0),
    Sketcher.Constraint("DistanceX", 0, 3, -1, 1, 28.284271),
    Sketcher.Constraint("DistanceY", 0, 3, -1, 1, 28.284271),
])
pad3 = body10.newObject("PartDesign::Pad", "Pad002")
pad3.Profile = sketch10
pad3.Length = 45
pad3.Reversed = True
doc.recompute()

body11 = doc.addObject("PartDesign::Body", "Body010")
body11.BaseFeature = body10
boolean3 = body8.newObject("PartDesign::Boolean", "Boolean002")
boolean3.Type = "Cut"
boolean3.addObjects([body11])
doc.recompute()

boolean4 = body9.newObject("PartDesign::Boolean", "Boolean003")
boolean4.Type = "Cut"
boolean4.addObjects([body10])

# Sketch on XY plane
sketch11 = body9.newObject("Sketcher::SketchObject", "Sketch010")
sketch11.AttachmentSupport = (doc.getObject("XY_Plane008"), [""])
sketch11.MapMode = "FlatFace"
sketch11.AttachmentOffset = App.Placement(App.Vector(0, 0, 112.877211), App.Rotation())
add_polygon(sketch11, [(-250, 50), (-250, -50), (250, -50), (250, 50)])  # lines 0-3
sketch11.addGeometry(Part.Circle(App.Vector(-28.3, -28.3, 0), App.Vector(0, 0, 1), 3), False)  # 4
sketch11.addGeometry(Part.Circle(App.Vector(0, -40, 0), App.Vector(0, 0, 1), 3), False)  # 5
sketch11.addGeometry(Part.Circle(App.Vector(28.3, -28.3, 0), App.Vector(0, 0, 1), 3), False)  # 6
sketch11.addGeometry(Part.Circle(App.Vector(-40, 0, 0), App.Vector(0, 0, 1), 3), False)  # 7
sketch11.addGeometry(Part.Circle(App.Vector(-28.3, 28.3, 0), App.Vector(0, 0, 1), 3), False)  # 8
sketch11.addGeometry(Part.Circle(App.Vector(40, 0, 0), App.Vector(0, 0, 1), 3), False)  # 9
sketch11.addGeometry(Part.Circle(App.Vector(0, 40, 0), App.Vector(0, 0, 1), 3), False)  # 10
sketch11.addGeometry(Part.Circle(App.Vector(28.3, 28.3, 0), App.Vector(0, 0, 1), 3), False)  # 11
sketch11.addConstraint([
    Sketcher.Constraint("Vertical", 0),
    Sketcher.Constraint("Horizontal", 1),
    Sketcher.Constraint("Vertical", 2),
    Sketcher.Constraint("Horizontal", 3),
    Sketcher.Constraint("Equal", 4, 5),
    Sketcher.Constraint("Equal", 5, 6),
    Sketcher.Constraint("Equal", 6, 7),
    Sketcher.Constraint("Equal", 7, 8),
    Sketcher.Constraint("Equal", 8, 9),
    Sketcher.Constraint("Equal", 9, 10),
    Sketcher.Constraint("Equal", 10, 11),
    Sketcher.Constraint("Symmetric", 6, 3, 8, 3, -1, 1),
    Sketcher.Constraint("Symmetric", 7, 3, 9, 3, -1, 1),
    Sketcher.Constraint("Symmetric", 5, 3, 10, 3, -1, 1),
    Sketcher.Constraint("Symmetric", 4, 3, 11, 3, -1, 1),
    Sketcher.Constraint("Symmetric", 0, 2, 2, 2, -1, 1),
    Sketcher.Constraint("Symmetric", 4, 3, 6, 3, -2),
    Sketcher.Constraint("PointOnObject", 5, 3, -2),
    Sketcher.Constraint("PointOnObject", 7, 3, -1),
    Sketcher.Constraint("Diameter", 4, 6.0),
    Sketcher.Constraint("DistanceX", 1, 1, 1, 2, 500.0),
    Sketcher.Constraint("DistanceY", 0, 2, 0, 1, 100.0),
    Sketcher.Constraint("DistanceY", 5, 3, -1, 1, 40.0),
    Sketcher.Constraint("DistanceX", 7, 3, -1, 1, 40.0),
    Sketcher.Constraint("DistanceX", 4, 3, -1, 1, 28.284271),
    Sketcher.Constraint("DistanceY", 4, 3, -1, 1, 28.284271),
])
pad4 = body9.newObject("PartDesign::Pad", "Pad003")
pad4.Profile = sketch11
pad4.Length = 25
body12 = doc.addObject("PartDesign::Body", "Body011")
body12.AllowCompound = True

# Sketch on XY plane
sketch12 = body12.newObject("Sketcher::SketchObject", "Sketch011")
sketch12.AttachmentSupport = (doc.getObject("XY_Plane011"), [""])
sketch12.MapMode = "FlatFace"
sketch12.AttachmentOffset = App.Placement(App.Vector(0, 0, 137.877211), App.Rotation())
sketch12.addGeometry([
    Part.Circle(App.Vector(210, 0, 0), App.Vector(0, 0, 1), 15),
    Part.Circle(App.Vector(-210, 0, 0), App.Vector(0, 0, 1), 15),
], False)
sketch12.addConstraint([
    Sketcher.Constraint("Equal", 0, 1),
    Sketcher.Constraint("Symmetric", 0, 3, 1, 3, -1, 1),
    Sketcher.Constraint("PointOnObject", 0, 3, -1),
    Sketcher.Constraint("Diameter", 0, 30.0),
    Sketcher.Constraint("DistanceX", -1, 1, 0, 3, 210.0),
])
pad5 = body12.newObject("PartDesign::Pad", "Pad004")
pad5.Profile = sketch12
pad5.Length = 300
pad5.Reversed = True
doc.recompute()

body13 = doc.addObject("PartDesign::Body", "Body012")
body13.BaseFeature = body12
boolean5 = body6.newObject("PartDesign::Boolean", "Boolean004")
boolean5.Type = "Cut"
boolean5.addObjects([body13])
doc.recompute()

boolean6 = body9.newObject("PartDesign::Boolean", "Boolean005")
boolean6.Type = "Cut"
boolean6.addObjects([body12])

doc.recompute()
